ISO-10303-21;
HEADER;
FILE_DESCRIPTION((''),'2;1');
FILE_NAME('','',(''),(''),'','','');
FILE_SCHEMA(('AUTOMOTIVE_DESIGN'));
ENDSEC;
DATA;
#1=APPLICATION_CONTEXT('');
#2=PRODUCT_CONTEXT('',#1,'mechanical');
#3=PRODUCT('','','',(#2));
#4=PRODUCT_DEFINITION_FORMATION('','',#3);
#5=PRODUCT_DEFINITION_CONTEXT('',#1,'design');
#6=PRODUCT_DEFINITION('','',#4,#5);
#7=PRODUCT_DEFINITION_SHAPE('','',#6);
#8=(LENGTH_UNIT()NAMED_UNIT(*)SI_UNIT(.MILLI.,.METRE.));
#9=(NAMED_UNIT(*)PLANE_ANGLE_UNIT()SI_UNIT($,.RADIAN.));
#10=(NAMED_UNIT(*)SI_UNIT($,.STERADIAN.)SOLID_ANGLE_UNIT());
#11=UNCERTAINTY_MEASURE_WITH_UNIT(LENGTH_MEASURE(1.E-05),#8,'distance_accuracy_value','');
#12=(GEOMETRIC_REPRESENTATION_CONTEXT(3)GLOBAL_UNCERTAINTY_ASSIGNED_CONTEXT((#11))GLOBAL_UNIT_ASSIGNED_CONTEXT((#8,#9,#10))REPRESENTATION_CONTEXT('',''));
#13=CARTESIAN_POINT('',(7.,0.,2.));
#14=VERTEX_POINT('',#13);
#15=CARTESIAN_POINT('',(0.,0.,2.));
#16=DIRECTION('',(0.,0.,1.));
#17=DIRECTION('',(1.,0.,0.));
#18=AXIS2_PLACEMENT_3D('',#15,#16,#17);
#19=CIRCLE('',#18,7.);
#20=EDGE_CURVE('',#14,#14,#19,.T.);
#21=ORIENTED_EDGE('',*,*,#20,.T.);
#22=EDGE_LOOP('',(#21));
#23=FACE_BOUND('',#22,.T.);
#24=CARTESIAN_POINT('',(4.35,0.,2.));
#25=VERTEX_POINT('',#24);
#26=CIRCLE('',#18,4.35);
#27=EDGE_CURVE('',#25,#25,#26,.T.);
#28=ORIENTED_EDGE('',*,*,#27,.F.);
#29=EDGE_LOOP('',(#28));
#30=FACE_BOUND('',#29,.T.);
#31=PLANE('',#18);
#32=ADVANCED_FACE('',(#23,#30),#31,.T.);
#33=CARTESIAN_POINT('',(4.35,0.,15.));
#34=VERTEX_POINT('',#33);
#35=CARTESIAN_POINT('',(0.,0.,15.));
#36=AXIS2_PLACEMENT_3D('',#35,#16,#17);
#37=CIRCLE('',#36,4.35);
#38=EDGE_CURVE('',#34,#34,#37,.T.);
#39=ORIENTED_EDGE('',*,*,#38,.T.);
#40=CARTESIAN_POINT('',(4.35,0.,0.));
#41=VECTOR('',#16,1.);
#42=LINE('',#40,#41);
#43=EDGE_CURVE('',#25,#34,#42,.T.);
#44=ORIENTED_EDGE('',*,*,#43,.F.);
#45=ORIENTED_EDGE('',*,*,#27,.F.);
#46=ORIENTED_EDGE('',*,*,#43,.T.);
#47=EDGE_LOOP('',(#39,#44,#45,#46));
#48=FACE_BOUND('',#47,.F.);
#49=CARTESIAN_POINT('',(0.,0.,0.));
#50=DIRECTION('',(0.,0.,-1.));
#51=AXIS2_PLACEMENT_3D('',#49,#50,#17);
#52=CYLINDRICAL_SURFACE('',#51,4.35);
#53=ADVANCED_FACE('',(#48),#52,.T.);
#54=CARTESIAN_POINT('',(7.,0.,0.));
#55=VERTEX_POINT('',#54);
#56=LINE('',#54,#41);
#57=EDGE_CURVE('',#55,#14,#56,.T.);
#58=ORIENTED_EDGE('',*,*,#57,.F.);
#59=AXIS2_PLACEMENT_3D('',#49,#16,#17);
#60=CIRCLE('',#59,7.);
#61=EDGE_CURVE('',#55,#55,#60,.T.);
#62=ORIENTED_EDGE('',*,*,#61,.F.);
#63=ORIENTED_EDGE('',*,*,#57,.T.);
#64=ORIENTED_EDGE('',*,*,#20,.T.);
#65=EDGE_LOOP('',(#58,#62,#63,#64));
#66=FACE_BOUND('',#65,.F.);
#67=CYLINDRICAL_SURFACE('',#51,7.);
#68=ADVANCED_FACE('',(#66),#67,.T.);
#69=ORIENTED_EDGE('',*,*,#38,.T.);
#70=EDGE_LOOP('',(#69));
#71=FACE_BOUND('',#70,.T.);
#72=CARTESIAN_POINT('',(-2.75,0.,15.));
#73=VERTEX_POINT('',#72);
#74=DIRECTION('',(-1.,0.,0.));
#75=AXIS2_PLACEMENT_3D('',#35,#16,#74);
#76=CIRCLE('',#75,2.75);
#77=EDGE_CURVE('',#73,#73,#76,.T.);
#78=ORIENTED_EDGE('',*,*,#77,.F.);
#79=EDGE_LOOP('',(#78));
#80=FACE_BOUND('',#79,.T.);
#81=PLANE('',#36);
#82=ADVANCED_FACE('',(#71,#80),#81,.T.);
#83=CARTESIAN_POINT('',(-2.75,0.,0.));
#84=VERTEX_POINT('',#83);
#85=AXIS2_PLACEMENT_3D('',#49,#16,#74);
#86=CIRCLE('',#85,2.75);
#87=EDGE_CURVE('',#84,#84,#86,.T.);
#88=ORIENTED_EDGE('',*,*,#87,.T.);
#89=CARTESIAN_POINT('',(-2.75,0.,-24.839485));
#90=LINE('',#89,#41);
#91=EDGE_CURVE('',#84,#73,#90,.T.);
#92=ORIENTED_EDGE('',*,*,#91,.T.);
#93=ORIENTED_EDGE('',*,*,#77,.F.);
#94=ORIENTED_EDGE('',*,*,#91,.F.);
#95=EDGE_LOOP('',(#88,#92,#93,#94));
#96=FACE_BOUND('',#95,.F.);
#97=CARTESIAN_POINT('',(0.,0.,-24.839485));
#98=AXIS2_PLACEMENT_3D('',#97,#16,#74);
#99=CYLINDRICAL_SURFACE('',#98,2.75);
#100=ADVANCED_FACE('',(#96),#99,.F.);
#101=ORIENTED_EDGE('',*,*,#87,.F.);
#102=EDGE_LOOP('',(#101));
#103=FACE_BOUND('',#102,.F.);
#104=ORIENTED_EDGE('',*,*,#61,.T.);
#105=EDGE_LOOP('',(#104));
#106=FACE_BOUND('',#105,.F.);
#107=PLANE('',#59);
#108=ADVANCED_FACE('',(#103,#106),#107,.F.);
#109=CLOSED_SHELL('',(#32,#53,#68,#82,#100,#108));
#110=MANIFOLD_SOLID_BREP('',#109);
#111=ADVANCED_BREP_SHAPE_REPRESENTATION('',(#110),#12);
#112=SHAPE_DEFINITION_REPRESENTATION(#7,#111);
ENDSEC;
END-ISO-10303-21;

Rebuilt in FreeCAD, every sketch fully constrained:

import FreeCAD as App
import Part
import Sketcher

doc = App.newDocument("Part")
body = doc.addObject("PartDesign::Body", "Body")

# Sketch on XY plane
sketch1 = body.newObject("Sketcher::SketchObject", "Sketch")
sketch1.AttachmentSupport = (doc.getObject("XY_Plane"), [""])
sketch1.MapMode = "FlatFace"
sketch1.addGeometry(Part.Circle(App.Vector(0, 0, 0), App.Vector(0, 0, 1), 4.3), False)
sketch1.addConstraint(Sketcher.Constraint("Coincident", 0, 3, -1, 1))
sketch1.addConstraint(Sketcher.Constraint("Diameter", 0, 8.7))
pad1 = body.newObject("PartDesign::Pad", "Pad")
pad1.Profile = sketch1
pad1.Length = 15

# Sketch on XY plane
sketch2 = body.newObject("Sketcher::SketchObject", "Sketch001")
sketch2.AttachmentSupport = (doc.getObject("XY_Plane"), [""])
sketch2.MapMode = "FlatFace"
sketch2.addGeometry(Part.Circle(App.Vector(0, 0, 0), App.Vector(0, 0, 1), 7), False)
sketch2.addGeometry(Part.Circle(App.Vector(0, 0, 0), App.Vector(0, 0, 1), 4.3), False)
sketch2.addConstraint(Sketcher.Constraint("Coincident", 0, 3, -1, 1))
sketch2.addConstraint(Sketcher.Constraint("Coincident", 1, 3, -1, 1))
sketch2.addConstraint(Sketcher.Constraint("Diameter", 0, 14.0))
sketch2.addConstraint(Sketcher.Constraint("Diameter", 1, 8.7))
pad2 = body.newObject("PartDesign::Pad", "Pad001")
pad2.Profile = sketch2
pad2.Length = 2

# Sketch on XY plane
sketch3 = body.newObject("Sketcher::SketchObject", "Sketch002")
sketch3.AttachmentSupport = (doc.getObject("XY_Plane"), [""])
sketch3.MapMode = "FlatFace"
sketch3.addGeometry(Part.Circle(App.Vector(0, 0, 0), App.Vector(0, 0, 1), 2.8), False)
sketch3.addConstraint(Sketcher.Constraint("Coincident", 0, 3, -1, 1))
sketch3.addConstraint(Sketcher.Constraint("Diameter", 0, 5.5))
doc.recompute()
hole = body.newObject("PartDesign::Hole", "Hole")
hole.Profile = sketch3
hole.ThreadType = "None"
hole.Diameter = 5.5
hole.DepthType = "ThroughAll"
hole.Reversed = True

doc.recompute()
